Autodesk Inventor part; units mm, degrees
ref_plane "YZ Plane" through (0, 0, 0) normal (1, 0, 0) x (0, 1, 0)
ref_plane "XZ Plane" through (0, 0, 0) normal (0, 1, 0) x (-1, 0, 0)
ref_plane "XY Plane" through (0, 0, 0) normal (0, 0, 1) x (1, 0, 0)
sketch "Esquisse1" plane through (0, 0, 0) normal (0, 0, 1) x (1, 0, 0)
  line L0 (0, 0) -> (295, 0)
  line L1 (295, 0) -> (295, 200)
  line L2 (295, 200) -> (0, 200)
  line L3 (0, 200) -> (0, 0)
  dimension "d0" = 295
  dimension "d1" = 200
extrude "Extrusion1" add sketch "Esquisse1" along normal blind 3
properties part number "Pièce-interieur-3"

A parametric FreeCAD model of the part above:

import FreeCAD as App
import Part
import Sketcher
from FreeCAD import Vector
Q = App.Units.Quantity

doc = App.newDocument("Part")
body = doc.addObject("PartDesign::Body", "Body")

# Sketch on XY plane
sketch1 = body.newObject("Sketcher::SketchObject", "Sketch")
sketch1.AttachmentSupport = (doc.getObject("XY_Plane"), [""])
sketch1.MapMode = "FlatFace"
sketch1.addGeometry([
    Part.LineSegment(Vector(0, 200, 0), Vector(0, 0, 0)),
    Part.LineSegment(Vector(0, 0, 0), Vector(295, 0, 0)),
    Part.LineSegment(Vector(295, 0, 0), Vector(295, 200, 0)),
    Part.LineSegment(Vector(295, 200, 0), Vector(0, 200, 0)),
], False)
sketch1.addConstraint([
    Sketcher.Constraint("Coincident", 0, 2, 1, 1),
    Sketcher.Constraint("Coincident", 1, 2, 2, 1),
    Sketcher.Constraint("Coincident", 2, 2, 3, 1),
    Sketcher.Constraint("Coincident", 3, 2, 0, 1),
    Sketcher.Constraint("Vertical", 0),
    Sketcher.Constraint("Horizontal", 1),
    Sketcher.Constraint("Vertical", 2),
    Sketcher.Constraint("Horizontal", 3),
    Sketcher.Constraint("Coincident", 0, 2, -1, 1),
    Sketcher.Constraint("DistanceX", 1, 1, 1, 2, Q("295 mm")),
    Sketcher.Constraint("DistanceY", 0, 2, 0, 1, Q("200 mm")),
])
pad1 = body.newObject("PartDesign::Pad", "Pad")
pad1.Profile = sketch1
pad1.Length = 3

doc.recompute()
